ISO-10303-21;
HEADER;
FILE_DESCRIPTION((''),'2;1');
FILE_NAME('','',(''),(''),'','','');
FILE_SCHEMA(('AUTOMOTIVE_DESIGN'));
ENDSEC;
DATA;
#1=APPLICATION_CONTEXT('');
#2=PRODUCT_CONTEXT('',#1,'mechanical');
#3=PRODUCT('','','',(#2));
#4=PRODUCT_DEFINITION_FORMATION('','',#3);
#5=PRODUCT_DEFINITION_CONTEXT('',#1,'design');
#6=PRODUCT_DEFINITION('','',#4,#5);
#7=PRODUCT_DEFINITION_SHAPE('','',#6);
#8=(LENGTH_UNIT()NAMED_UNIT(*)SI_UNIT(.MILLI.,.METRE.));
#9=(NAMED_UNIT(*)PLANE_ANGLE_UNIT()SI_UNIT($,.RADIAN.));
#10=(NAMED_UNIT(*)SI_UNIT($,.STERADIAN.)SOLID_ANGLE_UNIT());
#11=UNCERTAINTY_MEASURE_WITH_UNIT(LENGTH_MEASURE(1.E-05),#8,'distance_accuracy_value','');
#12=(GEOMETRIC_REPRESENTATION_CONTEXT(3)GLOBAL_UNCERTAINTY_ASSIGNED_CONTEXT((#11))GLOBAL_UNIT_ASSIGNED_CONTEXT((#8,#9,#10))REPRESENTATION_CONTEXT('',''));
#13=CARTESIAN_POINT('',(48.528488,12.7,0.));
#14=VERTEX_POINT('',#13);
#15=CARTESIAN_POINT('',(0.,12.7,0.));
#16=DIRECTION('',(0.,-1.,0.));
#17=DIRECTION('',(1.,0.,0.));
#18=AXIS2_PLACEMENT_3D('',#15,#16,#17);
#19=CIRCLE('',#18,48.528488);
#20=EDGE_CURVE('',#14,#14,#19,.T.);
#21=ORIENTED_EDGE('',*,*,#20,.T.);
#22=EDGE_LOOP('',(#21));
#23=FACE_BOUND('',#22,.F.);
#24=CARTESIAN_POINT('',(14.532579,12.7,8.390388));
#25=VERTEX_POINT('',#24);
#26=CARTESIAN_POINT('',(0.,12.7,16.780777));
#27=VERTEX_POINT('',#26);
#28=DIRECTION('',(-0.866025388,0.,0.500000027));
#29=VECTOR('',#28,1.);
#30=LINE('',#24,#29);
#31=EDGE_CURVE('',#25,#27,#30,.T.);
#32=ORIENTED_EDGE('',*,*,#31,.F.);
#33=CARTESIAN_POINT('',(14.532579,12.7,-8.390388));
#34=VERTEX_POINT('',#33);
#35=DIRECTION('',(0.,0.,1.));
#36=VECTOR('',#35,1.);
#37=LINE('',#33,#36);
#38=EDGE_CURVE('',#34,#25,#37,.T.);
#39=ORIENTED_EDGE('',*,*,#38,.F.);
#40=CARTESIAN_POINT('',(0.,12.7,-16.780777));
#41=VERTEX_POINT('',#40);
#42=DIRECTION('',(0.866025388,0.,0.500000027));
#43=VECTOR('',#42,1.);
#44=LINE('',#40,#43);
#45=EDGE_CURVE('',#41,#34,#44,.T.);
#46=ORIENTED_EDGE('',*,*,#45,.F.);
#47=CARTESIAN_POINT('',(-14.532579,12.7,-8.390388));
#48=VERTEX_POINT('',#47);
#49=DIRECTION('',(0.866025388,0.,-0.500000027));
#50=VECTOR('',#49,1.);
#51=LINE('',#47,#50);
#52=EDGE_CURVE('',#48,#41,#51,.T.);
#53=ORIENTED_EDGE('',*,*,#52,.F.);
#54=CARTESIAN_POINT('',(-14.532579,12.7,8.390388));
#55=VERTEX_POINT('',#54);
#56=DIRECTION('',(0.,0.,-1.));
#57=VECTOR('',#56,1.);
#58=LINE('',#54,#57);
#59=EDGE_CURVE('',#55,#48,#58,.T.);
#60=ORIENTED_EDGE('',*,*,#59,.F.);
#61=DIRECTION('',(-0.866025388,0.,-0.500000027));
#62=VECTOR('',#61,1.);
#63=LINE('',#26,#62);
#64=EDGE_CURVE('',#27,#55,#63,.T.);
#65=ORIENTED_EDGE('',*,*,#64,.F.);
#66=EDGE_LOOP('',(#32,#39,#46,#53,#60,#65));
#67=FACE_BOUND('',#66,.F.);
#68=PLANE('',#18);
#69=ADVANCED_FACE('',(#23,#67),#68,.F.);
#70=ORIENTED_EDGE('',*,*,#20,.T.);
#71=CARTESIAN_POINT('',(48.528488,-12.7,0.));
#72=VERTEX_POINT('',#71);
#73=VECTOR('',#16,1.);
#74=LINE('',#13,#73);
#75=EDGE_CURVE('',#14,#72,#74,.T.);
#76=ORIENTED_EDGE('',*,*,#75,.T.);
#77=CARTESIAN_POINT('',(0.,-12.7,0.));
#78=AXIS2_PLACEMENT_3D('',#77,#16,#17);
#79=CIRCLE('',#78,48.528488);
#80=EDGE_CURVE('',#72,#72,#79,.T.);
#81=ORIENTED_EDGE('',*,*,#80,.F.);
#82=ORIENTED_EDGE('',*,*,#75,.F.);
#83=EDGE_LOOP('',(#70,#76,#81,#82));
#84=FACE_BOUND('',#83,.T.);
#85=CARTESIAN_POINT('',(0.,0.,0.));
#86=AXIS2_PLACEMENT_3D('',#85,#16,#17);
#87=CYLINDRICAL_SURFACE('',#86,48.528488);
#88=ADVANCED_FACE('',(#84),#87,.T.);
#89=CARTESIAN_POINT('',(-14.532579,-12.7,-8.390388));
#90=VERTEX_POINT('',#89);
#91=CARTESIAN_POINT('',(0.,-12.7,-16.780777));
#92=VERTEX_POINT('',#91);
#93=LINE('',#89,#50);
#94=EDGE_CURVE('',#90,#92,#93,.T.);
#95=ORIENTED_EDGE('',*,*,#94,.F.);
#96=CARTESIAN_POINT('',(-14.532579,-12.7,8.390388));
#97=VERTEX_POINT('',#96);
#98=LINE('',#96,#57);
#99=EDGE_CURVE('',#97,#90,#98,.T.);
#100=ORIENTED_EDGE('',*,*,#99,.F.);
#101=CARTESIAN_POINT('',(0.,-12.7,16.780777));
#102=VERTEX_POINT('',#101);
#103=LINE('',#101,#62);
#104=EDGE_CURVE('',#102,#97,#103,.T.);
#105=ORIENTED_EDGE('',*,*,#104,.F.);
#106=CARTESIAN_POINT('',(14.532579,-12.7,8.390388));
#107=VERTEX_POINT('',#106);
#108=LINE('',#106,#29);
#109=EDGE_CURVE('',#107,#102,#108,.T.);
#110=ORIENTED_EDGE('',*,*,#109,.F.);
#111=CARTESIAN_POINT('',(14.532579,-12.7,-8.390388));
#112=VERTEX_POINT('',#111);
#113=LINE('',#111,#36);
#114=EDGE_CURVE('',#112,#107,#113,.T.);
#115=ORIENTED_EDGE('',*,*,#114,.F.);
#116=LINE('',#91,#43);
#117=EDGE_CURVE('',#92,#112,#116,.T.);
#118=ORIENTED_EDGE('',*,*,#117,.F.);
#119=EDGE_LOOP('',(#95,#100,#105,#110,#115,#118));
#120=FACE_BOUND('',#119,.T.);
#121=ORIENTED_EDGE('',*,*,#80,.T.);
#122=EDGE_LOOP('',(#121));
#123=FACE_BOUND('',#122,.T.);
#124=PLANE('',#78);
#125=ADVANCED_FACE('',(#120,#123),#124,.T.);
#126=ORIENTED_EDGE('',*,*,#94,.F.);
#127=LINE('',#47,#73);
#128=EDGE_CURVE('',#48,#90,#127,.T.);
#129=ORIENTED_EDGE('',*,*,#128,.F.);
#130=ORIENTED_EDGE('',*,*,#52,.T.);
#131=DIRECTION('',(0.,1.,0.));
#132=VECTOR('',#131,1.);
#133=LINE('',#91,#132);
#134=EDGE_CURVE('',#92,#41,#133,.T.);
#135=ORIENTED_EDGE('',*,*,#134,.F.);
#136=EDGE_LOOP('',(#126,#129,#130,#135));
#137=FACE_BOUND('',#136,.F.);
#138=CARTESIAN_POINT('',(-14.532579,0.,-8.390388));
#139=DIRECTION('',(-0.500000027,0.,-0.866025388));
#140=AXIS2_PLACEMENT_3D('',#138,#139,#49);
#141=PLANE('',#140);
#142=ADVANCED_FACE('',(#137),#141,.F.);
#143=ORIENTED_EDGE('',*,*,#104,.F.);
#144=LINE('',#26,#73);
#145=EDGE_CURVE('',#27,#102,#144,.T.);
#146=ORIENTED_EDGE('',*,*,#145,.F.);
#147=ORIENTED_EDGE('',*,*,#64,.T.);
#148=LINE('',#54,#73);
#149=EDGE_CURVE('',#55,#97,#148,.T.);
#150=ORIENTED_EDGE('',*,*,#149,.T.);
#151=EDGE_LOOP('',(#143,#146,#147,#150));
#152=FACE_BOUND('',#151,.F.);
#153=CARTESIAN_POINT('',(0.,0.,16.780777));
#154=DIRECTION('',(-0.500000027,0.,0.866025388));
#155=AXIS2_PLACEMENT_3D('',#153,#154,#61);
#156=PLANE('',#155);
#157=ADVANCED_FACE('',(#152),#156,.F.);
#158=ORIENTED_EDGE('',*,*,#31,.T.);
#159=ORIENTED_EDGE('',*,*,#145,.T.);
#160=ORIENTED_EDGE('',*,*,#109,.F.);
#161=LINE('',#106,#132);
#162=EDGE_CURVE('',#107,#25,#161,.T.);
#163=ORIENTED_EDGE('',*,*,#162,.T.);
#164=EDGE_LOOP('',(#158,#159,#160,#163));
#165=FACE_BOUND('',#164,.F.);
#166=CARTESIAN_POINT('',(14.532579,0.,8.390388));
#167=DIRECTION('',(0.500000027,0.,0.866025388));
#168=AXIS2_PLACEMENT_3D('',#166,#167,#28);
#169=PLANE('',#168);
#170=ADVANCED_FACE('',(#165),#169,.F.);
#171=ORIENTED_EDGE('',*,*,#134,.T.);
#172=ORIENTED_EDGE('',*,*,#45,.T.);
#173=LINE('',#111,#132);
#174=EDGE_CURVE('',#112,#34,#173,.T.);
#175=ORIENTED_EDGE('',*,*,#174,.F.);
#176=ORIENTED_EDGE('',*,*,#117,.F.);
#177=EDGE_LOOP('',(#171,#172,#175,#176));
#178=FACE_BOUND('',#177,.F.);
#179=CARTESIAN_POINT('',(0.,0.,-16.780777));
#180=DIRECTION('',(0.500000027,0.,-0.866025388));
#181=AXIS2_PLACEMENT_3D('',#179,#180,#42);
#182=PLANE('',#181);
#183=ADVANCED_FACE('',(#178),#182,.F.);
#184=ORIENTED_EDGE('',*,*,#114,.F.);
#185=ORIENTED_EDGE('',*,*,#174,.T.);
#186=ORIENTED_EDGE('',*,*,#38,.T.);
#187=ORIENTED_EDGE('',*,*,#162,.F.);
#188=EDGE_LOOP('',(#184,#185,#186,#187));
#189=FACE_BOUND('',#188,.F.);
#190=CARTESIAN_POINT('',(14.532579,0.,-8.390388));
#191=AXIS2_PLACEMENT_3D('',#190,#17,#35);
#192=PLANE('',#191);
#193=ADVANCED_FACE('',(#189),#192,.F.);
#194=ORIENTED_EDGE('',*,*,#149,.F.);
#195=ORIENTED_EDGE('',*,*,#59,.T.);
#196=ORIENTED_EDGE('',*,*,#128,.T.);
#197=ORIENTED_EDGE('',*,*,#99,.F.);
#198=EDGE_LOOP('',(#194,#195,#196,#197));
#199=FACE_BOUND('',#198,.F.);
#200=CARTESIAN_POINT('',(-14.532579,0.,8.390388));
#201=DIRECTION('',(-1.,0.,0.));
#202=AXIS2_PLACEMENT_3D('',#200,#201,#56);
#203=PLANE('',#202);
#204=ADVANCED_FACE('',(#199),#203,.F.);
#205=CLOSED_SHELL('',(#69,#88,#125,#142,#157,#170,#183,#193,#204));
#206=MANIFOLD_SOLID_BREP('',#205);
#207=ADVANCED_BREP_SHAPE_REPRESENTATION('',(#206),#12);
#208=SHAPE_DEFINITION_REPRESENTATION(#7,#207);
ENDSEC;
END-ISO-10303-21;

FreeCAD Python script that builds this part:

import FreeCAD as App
import Part
import Sketcher
Q = App.Units.Quantity


def add_polygon(sketch, points):
    """Adds a closed chain of lines whose ends are joined by coincident constraints."""
    first, n = sketch.GeometryCount, len(points)
    for a, b in zip(points, points[1:] + points[:1]):
        sketch.addGeometry(Part.LineSegment(App.Vector(*a, 0), App.Vector(*b, 0)), False)
    for i in range(n):
        sketch.addConstraint(Sketcher.Constraint("Coincident", first + i, 2, first + (i + 1) % n, 1))

doc = App.newDocument("Part")
body = doc.addObject("PartDesign::Body", "Body")

sketch1 = doc.addObject("Sketcher::SketchObject", "Sketch")
body.addObject(sketch1)
sketch1.AttachmentSupport = (doc.XZ_Plane, [""])
sketch1.MapMode = "FlatFace"
sketch1.addGeometry(Part.Circle(App.Vector(0, 0, 0), App.Vector(0, 0, 1), 48.528488), False)
sketch1.addConstraint([
    Sketcher.Constraint("Coincident", 0, 3, -1, 1),
    Sketcher.Constraint("Diameter", 0, Q("97.056976 mm")),
])
pad1 = doc.addObject("PartDesign::Pad", "Pad")
body.addObject(pad1)
pad1.Profile = sketch1
pad1.Length = Q("1 in")
pad1.Midplane = True

sketch2 = doc.addObject("Sketcher::SketchObject", "Sketch001")
body.addObject(sketch2)
sketch2.AttachmentSupport = (doc.XZ_Plane, [""])
sketch2.MapMode = "FlatFace"
add_polygon(sketch2, [(14.532579, 8.390388), (0, 16.780777), (-14.532579, 8.390388), (-14.532579, -8.390388), (0, -16.780777), (14.532579, -8.390388)])
sketch2.addConstraint([
    Sketcher.Constraint("Vertical", 2),
    Sketcher.Constraint("Vertical", 5),
    Sketcher.Constraint("Symmetric", 0, 2, 3, 2, -1, 1),
    Sketcher.Constraint("Symmetric", 1, 2, 4, 2, -1, 1),
    Sketcher.Constraint("PointOnObject", 0, 2, -2),
    Sketcher.Constraint("Parallel", 0, 3),
    Sketcher.Constraint("Horizontal", 2, 2, 4, 2),
    Sketcher.Constraint("Angle", 0, Q("149.999998 deg")),
    Sketcher.Constraint("DistanceY", 2, 2, 2, 1, Q("16.780776 mm")),
    Sketcher.Constraint("DistanceX", 1, 2, -1, 1, Q("14.532579 mm")),
])
pocket1 = doc.addObject("PartDesign::Pocket", "Pocket")
body.addObject(pocket1)
pocket1.Profile = sketch2
pocket1.Length = Q("1 in")
pocket1.Midplane = True

doc.recompute()
